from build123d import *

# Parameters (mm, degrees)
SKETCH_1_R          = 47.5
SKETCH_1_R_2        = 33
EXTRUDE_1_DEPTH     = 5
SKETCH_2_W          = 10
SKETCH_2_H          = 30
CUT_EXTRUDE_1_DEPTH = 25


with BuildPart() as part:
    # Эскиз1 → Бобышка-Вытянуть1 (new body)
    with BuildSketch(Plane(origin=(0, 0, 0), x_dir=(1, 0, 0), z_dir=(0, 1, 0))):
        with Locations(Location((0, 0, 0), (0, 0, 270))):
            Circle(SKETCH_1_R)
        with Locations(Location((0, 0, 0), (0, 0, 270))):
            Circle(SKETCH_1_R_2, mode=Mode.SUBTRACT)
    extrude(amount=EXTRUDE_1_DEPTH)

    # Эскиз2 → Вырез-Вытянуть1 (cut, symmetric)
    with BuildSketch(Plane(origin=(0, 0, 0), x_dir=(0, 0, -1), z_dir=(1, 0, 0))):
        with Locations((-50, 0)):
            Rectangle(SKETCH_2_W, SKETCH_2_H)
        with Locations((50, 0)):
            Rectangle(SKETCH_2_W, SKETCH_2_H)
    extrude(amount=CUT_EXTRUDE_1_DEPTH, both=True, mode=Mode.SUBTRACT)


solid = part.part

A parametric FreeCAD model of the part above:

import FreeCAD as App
import Part
import Sketcher
from FreeCAD import Vector
Q = App.Units.Quantity


def add_polygon(sketch, points):
    """Adds a closed chain of lines whose ends are joined by coincident constraints."""
    first, n = sketch.GeometryCount, len(points)
    for a, b in zip(points, points[1:] + points[:1]):
        sketch.addGeometry(Part.LineSegment(App.Vector(*a, 0), App.Vector(*b, 0)), False)
    for i in range(n):
        sketch.addConstraint(Sketcher.Constraint("Coincident", first + i, 2, first + (i + 1) % n, 1))

doc = App.newDocument("Part")
params = doc.addObject("Spreadsheet::Sheet", "Params")
for row, (alias, value) in enumerate([
    ("sketch1_diameter", "95 mm"),
    ("sketch1_diameter2", "66 mm"),
    ("pad1_length", "5 mm"),
    ("sketch2_width", "30 mm"),
    ("sketch2_height", "10 mm"),
    ("pocket1_length", "50 mm"),
], start=1):
    params.set(f"A{row}", alias)
    params.set(f"B{row}", "=" + value)
    params.setAlias(f"B{row}", alias)

body = doc.addObject("PartDesign::Body", "Body")

# Sketch on XZ plane
sketch1 = body.newObject("Sketcher::SketchObject", "Sketch")
sketch1.AttachmentSupport = (doc.getObject("XZ_Plane"), [""])
sketch1.MapMode = "FlatFace"
sketch1.addGeometry(Part.Circle(Vector(0, 0, 0), Vector(0, 0, 1), 48), False)
sketch1.addGeometry(Part.Circle(Vector(0, 0, 0), Vector(0, 0, 1), 33), False)
sketch1.addConstraint(Sketcher.Constraint("Coincident", 0, 3, -1, 1))
sketch1.addConstraint(Sketcher.Constraint("Coincident", 1, 3, -1, 1))
sketch1.addConstraint(Sketcher.Constraint("Diameter", 0, Q("95 mm")))
sketch1.addConstraint(Sketcher.Constraint("Diameter", 1, Q("66 mm")))
sketch1.setExpression("Constraints[2]", "Params.sketch1_diameter")
sketch1.setExpression("Constraints[3]", "Params.sketch1_diameter2")
pad1 = body.newObject("PartDesign::Pad", "Pad")
pad1.Profile = sketch1
pad1.setExpression("Length", "Params.pad1_length")
pad1.Reversed = True

# Sketch on YZ plane
sketch2 = body.newObject("Sketcher::SketchObject", "Sketch001")
sketch2.AttachmentSupport = (doc.getObject("YZ_Plane"), [""])
sketch2.MapMode = "FlatFace"
add_polygon(sketch2, [(15, 55), (-15, 55), (-15, 45), (15, 45)])  # lines 0-3
add_polygon(sketch2, [(15, -45), (-15, -45), (-15, -55), (15, -55)])  # lines 4-7
sketch2.addConstraint(Sketcher.Constraint("Horizontal", 0))
sketch2.addConstraint(Sketcher.Constraint("Vertical", 1))
sketch2.addConstraint(Sketcher.Constraint("Horizontal", 2))
sketch2.addConstraint(Sketcher.Constraint("Vertical", 3))
sketch2.addConstraint(Sketcher.Constraint("Horizontal", 4))
sketch2.addConstraint(Sketcher.Constraint("Vertical", 5))
sketch2.addConstraint(Sketcher.Constraint("Horizontal", 6))
sketch2.addConstraint(Sketcher.Constraint("Vertical", 7))
sketch2.addConstraint(Sketcher.Constraint("Symmetric", 2, 2, 4, 2, -1, 1))
sketch2.addConstraint(Sketcher.Constraint("Symmetric", 0, 2, 6, 2, -1, 1))
sketch2.addConstraint(Sketcher.Constraint("Vertical", 1, 2, 4, 2))
sketch2.addConstraint(Sketcher.Constraint("DistanceX", 0, 2, 0, 1, Q("30 mm")))
sketch2.addConstraint(Sketcher.Constraint("DistanceY", 1, 2, 1, 1, Q("10 mm")))
sketch2.addConstraint(Sketcher.Constraint("DistanceY", -1, 1, 0, 2, Q("55 mm")))
sketch2.setExpression("Constraints[19]", "Params.sketch2_width")
sketch2.setExpression("Constraints[20]", "Params.sketch2_height")
pocket1 = body.newObject("PartDesign::Pocket", "Pocket")
pocket1.Profile = sketch2
pocket1.setExpression("Length", "Params.pocket1_length")
pocket1.Midplane = True

doc.recompute()
